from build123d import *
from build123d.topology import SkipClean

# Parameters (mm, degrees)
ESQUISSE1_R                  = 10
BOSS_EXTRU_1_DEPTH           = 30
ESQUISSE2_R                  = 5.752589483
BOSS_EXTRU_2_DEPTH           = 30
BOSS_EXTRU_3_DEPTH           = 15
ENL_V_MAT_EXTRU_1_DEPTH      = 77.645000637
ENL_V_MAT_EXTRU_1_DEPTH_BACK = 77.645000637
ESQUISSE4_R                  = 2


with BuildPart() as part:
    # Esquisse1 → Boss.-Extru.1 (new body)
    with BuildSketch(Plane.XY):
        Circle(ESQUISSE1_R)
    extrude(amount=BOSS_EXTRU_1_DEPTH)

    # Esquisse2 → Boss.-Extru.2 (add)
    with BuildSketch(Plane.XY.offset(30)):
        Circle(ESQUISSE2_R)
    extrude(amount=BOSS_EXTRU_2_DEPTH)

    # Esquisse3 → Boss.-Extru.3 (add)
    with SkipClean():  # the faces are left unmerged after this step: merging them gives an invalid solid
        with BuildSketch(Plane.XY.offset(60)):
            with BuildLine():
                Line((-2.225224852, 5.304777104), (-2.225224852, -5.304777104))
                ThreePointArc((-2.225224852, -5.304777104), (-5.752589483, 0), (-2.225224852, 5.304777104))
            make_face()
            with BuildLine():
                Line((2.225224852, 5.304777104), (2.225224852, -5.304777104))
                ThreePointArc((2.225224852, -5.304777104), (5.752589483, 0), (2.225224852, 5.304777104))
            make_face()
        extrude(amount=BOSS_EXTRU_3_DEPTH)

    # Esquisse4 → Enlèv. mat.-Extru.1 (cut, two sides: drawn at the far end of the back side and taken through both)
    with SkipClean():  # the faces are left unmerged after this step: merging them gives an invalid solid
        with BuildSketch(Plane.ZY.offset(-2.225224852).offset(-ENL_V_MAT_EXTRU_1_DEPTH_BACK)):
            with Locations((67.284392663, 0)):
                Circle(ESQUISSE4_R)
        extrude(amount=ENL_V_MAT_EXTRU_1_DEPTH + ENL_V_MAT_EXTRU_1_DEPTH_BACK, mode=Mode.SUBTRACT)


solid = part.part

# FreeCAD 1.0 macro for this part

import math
import FreeCAD as App
import Part
import Sketcher
from FreeCAD import Vector

doc = App.newDocument("Part")
body = doc.addObject("PartDesign::Body", "Body")

sketch1 = body.newObject("Sketcher::SketchObject", "Sketch")
sketch1.AttachmentSupport = (doc.getObject("XY_Plane"), [""])
sketch1.MapMode = "FlatFace"
sketch1.addGeometry(Part.Circle(Vector(0, 0, 0), Vector(0, 0, 1), 10), False)
sketch1.addConstraint([
    Sketcher.Constraint("Coincident", 0, 3, -1, 1),
    Sketcher.Constraint("Diameter", 0, 20.0),
])
pad1 = body.newObject("PartDesign::Pad", "Pad")
pad1.Profile = sketch1
pad1.Length = 30

sketch2 = body.newObject("Sketcher::SketchObject", "Sketch001")
sketch2.AttachmentSupport = (doc.getObject("XY_Plane"), [""])
sketch2.MapMode = "FlatFace"
sketch2.AttachmentOffset = App.Placement(Vector(0, 0, 30), App.Rotation())
sketch2.addGeometry(Part.Circle(Vector(0, 0, 0), Vector(0, 0, 1), 6), False)
sketch2.addConstraint([
    Sketcher.Constraint("Coincident", 0, 3, -1, 1),
    Sketcher.Constraint("Diameter", 0, 11.505179),
])
pad2 = body.newObject("PartDesign::Pad", "Pad001")
pad2.Profile = sketch2
pad2.Length = 30

sketch3 = body.newObject("Sketcher::SketchObject", "Sketch002")
sketch3.AttachmentSupport = (doc.getObject("XY_Plane"), [""])
sketch3.MapMode = "FlatFace"
sketch3.AttachmentOffset = App.Placement(Vector(0, 0, 60), App.Rotation())
sketch3.addGeometry([
    Part.LineSegment(Vector(-2, -5, 0), Vector(-2, 5, 0)),
    Part.ArcOfCircle(Part.Circle(Vector(0, 0, 0), Vector(0, 0, 1), 6), math.radians(113), math.radians(247)),
    Part.LineSegment(Vector(2, 5, 0), Vector(2, -5, 0)),
    Part.ArcOfCircle(Part.Circle(Vector(0, 0, 0), Vector(0, 0, 1), 6), math.radians(-67), math.radians(67)),
], False)
sketch3.addConstraint([
    Sketcher.Constraint("Coincident", 0, 1, 1, 2),
    Sketcher.Constraint("Coincident", 1, 1, 0, 2),
    Sketcher.Constraint("Coincident", 2, 1, 3, 2),
    Sketcher.Constraint("Coincident", 3, 1, 2, 2),
    Sketcher.Constraint("Vertical", 0),
    Sketcher.Constraint("Vertical", 2),
    Sketcher.Constraint("Coincident", 1, 3, -1, 1),
    Sketcher.Constraint("Coincident", 3, 3, -1, 1),
    Sketcher.Constraint("Equal", 1, 3),
    Sketcher.Constraint("Horizontal", 1, 1, 2, 1),
    Sketcher.Constraint("Radius", 1, 5.752589),
    Sketcher.Constraint("DistanceY", 0, 1, 0, 2, 10.609554),
])
pad3 = body.newObject("PartDesign::Pad", "Pad002")
pad3.Profile = sketch3
pad3.Length = 15

sketch4 = body.newObject("Sketcher::SketchObject", "Sketch003")
sketch4.AttachmentSupport = (doc.getObject("YZ_Plane"), [""])
sketch4.MapMode = "FlatFace"
sketch4.AttachmentOffset = App.Placement(Vector(0, 0, 2.225225), App.Rotation())
sketch4.addGeometry(Part.Circle(Vector(0, 67.3, 0), Vector(0, 0, 1), 2), False)
sketch4.addConstraint([
    Sketcher.Constraint("PointOnObject", 0, 3, -2),
    Sketcher.Constraint("Diameter", 0, 4.0),
    Sketcher.Constraint("DistanceY", -1, 1, 0, 3, 67.284393),
])
pocket1 = body.newObject("PartDesign::Pocket", "Pocket")
pocket1.Profile = sketch4
pocket1.Type = "ThroughAll"
pocket1.Midplane = True

doc.recompute()
